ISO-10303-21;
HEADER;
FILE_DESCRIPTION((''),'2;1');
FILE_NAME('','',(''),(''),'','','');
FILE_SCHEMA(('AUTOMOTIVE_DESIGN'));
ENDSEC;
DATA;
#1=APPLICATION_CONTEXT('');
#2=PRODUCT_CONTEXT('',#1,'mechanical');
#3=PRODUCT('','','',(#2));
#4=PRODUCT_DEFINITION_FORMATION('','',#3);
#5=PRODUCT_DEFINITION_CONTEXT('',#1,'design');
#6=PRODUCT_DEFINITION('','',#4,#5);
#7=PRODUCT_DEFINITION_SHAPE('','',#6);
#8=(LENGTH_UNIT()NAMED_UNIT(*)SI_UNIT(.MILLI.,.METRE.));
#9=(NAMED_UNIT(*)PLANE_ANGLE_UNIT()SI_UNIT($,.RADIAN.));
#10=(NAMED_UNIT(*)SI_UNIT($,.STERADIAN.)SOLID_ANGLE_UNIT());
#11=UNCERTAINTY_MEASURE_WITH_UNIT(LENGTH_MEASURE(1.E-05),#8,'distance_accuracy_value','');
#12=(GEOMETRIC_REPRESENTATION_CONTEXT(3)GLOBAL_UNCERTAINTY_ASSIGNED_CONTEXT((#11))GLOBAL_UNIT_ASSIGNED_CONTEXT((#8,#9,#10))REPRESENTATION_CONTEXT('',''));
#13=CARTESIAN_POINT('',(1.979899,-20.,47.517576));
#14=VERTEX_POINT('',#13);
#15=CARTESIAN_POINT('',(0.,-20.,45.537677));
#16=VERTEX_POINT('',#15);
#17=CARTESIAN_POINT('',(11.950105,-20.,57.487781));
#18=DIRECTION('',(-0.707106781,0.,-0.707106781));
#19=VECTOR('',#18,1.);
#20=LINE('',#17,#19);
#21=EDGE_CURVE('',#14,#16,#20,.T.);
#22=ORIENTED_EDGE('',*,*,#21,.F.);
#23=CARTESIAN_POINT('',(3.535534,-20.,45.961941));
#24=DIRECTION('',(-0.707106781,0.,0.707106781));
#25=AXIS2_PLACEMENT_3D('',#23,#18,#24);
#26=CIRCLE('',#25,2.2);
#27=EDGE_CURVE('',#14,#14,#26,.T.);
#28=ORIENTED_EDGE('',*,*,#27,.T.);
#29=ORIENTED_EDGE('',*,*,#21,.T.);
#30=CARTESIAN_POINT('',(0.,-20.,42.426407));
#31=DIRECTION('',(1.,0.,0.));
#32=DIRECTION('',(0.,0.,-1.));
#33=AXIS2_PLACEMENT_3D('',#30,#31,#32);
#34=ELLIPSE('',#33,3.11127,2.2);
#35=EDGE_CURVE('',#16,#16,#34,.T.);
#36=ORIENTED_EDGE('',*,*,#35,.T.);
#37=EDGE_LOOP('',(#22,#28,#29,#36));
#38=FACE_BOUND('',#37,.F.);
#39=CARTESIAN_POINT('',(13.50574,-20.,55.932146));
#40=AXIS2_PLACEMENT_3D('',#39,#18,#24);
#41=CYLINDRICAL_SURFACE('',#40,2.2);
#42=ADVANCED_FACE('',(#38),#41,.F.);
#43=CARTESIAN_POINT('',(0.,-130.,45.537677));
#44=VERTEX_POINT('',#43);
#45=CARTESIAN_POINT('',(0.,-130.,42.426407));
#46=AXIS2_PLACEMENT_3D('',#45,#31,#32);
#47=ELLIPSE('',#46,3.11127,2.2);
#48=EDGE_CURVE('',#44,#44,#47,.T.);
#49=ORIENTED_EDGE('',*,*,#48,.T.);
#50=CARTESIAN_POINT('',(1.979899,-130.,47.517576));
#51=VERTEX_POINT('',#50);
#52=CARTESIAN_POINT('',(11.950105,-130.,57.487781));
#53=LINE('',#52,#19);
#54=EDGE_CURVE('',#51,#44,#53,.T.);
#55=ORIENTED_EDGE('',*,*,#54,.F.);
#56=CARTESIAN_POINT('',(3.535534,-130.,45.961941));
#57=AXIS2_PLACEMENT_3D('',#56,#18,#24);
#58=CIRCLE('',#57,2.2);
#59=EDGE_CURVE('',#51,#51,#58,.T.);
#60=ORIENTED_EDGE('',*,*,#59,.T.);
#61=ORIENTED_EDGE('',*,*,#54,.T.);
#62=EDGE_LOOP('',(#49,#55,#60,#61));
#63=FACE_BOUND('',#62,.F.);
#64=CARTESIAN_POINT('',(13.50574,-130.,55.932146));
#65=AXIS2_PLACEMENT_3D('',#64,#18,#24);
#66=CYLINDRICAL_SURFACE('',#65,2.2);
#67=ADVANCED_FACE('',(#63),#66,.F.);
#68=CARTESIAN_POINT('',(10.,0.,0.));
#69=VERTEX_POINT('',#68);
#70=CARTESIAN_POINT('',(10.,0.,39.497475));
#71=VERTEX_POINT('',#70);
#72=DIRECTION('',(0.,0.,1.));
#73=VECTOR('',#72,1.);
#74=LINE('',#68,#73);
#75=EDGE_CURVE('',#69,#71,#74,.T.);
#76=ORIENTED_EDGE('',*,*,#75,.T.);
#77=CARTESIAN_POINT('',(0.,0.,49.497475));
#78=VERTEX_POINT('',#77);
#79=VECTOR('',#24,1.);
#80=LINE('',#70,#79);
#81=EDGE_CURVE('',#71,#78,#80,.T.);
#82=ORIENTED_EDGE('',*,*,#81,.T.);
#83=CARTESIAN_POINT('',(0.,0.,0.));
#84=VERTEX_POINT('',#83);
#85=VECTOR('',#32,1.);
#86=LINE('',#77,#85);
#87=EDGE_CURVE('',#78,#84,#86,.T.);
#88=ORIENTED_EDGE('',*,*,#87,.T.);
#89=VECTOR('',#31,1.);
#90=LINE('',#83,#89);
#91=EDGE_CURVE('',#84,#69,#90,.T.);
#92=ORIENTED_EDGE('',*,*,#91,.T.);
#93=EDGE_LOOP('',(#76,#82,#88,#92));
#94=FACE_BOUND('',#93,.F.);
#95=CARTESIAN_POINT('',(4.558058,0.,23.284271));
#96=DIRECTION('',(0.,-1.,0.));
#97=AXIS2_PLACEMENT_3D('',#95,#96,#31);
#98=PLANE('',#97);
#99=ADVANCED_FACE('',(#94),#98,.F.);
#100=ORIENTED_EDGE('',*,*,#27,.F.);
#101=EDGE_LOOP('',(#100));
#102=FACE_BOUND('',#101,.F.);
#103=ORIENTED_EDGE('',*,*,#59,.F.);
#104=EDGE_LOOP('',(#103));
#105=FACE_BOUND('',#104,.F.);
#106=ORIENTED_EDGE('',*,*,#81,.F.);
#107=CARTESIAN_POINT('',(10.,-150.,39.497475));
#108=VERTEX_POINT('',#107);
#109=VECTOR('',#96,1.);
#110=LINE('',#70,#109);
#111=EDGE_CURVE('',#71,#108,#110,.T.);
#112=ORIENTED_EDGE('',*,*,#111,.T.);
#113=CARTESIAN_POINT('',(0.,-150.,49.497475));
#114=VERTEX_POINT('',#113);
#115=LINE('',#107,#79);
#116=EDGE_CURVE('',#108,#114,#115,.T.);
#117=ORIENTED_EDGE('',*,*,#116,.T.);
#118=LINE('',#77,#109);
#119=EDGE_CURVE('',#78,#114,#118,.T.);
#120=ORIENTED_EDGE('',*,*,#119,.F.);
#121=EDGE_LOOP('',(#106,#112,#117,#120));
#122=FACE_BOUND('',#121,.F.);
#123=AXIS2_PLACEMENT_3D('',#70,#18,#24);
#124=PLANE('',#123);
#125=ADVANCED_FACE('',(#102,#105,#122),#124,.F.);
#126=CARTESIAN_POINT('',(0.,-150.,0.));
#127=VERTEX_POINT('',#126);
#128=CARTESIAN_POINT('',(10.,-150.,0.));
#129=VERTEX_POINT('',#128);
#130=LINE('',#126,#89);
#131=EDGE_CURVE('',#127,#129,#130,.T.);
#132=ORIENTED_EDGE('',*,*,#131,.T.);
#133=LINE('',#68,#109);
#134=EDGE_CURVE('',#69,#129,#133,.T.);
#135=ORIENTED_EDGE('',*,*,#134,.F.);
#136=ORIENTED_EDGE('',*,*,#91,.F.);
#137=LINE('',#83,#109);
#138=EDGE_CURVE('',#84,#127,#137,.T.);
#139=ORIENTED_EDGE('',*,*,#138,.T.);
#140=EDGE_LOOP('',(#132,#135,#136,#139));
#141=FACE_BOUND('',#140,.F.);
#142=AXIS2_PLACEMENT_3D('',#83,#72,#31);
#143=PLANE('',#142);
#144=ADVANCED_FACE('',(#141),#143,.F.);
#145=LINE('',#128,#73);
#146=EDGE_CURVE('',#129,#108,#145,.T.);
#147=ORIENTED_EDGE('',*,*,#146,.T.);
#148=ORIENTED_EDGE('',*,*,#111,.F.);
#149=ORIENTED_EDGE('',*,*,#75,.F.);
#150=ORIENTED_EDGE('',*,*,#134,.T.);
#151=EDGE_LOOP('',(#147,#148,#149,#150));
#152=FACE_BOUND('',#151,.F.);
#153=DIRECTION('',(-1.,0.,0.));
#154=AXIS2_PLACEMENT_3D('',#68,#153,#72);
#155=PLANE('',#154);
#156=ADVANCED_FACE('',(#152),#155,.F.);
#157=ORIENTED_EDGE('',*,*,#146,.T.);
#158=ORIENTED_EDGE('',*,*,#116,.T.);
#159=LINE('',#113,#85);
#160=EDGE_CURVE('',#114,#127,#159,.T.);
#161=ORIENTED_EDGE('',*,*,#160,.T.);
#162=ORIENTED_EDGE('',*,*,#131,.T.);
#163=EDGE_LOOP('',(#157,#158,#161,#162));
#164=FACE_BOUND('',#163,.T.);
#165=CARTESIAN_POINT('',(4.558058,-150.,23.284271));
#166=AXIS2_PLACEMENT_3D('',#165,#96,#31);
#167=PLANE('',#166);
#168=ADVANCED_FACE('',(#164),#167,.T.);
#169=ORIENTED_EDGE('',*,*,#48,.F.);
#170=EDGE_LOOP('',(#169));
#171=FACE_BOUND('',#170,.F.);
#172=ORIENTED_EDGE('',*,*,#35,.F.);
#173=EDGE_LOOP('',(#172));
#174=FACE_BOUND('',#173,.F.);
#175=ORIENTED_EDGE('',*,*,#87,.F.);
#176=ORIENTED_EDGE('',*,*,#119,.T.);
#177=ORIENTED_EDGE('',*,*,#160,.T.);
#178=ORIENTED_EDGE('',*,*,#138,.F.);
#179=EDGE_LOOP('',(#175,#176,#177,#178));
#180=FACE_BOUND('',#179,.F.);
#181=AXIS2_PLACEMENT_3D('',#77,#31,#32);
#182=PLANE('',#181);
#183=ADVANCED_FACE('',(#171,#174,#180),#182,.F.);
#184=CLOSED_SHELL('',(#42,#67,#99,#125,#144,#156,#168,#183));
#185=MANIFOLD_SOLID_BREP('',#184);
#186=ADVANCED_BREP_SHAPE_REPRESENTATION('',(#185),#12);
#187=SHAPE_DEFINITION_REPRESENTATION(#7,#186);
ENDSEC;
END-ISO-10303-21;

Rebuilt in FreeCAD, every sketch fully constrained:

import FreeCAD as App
import Part
import Sketcher
from FreeCAD import Vector
Q = App.Units.Quantity

doc = App.newDocument("Part")
body = doc.addObject("PartDesign::Body", "Body")

# Sketch on XZ plane
sketch1 = body.newObject("Sketcher::SketchObject", "Sketch")
sketch1.AttachmentSupport = (doc.getObject("XZ_Plane"), [""])
sketch1.MapMode = "FlatFace"
sketch1.addGeometry([
    Part.LineSegment(Vector(10, 39.497475, 0), Vector(0, 49.497475, 0)),
    Part.LineSegment(Vector(0, 49.497475, 0), Vector(0, 0, 0)),
    Part.LineSegment(Vector(0, 0, 0), Vector(10, 0, 0)),
    Part.LineSegment(Vector(10, 0, 0), Vector(10, 39.497475, 0)),
], False)
sketch1.addConstraint([
    Sketcher.Constraint("Coincident", 0, 2, 1, 1),
    Sketcher.Constraint("Coincident", 1, 2, 2, 1),
    Sketcher.Constraint("Coincident", 2, 2, 3, 1),
    Sketcher.Constraint("Coincident", 3, 2, 0, 1),
    Sketcher.Constraint("Vertical", 1),
    Sketcher.Constraint("Horizontal", 2),
    Sketcher.Constraint("Vertical", 3),
    Sketcher.Constraint("Coincident", 1, 2, -1, 1),
    Sketcher.Constraint("DistanceX", 2, 1, 2, 2, 10.0),
    Sketcher.Constraint("Angle", 0, Q("135 deg")),
    Sketcher.Constraint("DistanceY", 1, 2, 1, 1, 49.497475),
])
pad1 = body.newObject("PartDesign::Pad", "Pad")
pad1.Profile = sketch1
pad1.Length = 150

# Sketch on an angled plane
sketch2 = body.newObject("Sketcher::SketchObject", "Sketch001")
sketch2.Placement = App.Placement(Vector(24.748737, 0, 24.748737), App.Rotation(Vector(0.707106781, 0, -0.707106781), Vector(0, 0.999999999, 0), Vector(0.707106781, 0, 0.707106781), "ZXY"))
sketch2.addGeometry([
    Part.Circle(Vector(-30, -130, 0), Vector(0, 0, 1), 2.2),
    Part.Circle(Vector(-30, -20, 0), Vector(0, 0, 1), 2.2),
], False)
sketch2.addConstraint([
    Sketcher.Constraint("Equal", 0, 1),
    Sketcher.Constraint("Vertical", 0, 3, 1, 3),
    Sketcher.Constraint("Diameter", 0, 4.4),
    Sketcher.Constraint("DistanceX", 0, 3, -1, 1, 30.0),
    Sketcher.Constraint("DistanceY", 0, 3, -1, 1, 130.0),
    Sketcher.Constraint("DistanceY", 1, 3, -1, 1, 20.0),
])
doc.recompute()
hole = body.newObject("PartDesign::Hole", "Hole")
hole.Profile = sketch2
hole.ThreadType = "None"
hole.Diameter = 4.4
hole.DepthType = "Dimension"
hole.Depth = 14.1
hole.DrillPoint = "Angled"
hole.DrillPointAngle = 118

doc.recompute()
